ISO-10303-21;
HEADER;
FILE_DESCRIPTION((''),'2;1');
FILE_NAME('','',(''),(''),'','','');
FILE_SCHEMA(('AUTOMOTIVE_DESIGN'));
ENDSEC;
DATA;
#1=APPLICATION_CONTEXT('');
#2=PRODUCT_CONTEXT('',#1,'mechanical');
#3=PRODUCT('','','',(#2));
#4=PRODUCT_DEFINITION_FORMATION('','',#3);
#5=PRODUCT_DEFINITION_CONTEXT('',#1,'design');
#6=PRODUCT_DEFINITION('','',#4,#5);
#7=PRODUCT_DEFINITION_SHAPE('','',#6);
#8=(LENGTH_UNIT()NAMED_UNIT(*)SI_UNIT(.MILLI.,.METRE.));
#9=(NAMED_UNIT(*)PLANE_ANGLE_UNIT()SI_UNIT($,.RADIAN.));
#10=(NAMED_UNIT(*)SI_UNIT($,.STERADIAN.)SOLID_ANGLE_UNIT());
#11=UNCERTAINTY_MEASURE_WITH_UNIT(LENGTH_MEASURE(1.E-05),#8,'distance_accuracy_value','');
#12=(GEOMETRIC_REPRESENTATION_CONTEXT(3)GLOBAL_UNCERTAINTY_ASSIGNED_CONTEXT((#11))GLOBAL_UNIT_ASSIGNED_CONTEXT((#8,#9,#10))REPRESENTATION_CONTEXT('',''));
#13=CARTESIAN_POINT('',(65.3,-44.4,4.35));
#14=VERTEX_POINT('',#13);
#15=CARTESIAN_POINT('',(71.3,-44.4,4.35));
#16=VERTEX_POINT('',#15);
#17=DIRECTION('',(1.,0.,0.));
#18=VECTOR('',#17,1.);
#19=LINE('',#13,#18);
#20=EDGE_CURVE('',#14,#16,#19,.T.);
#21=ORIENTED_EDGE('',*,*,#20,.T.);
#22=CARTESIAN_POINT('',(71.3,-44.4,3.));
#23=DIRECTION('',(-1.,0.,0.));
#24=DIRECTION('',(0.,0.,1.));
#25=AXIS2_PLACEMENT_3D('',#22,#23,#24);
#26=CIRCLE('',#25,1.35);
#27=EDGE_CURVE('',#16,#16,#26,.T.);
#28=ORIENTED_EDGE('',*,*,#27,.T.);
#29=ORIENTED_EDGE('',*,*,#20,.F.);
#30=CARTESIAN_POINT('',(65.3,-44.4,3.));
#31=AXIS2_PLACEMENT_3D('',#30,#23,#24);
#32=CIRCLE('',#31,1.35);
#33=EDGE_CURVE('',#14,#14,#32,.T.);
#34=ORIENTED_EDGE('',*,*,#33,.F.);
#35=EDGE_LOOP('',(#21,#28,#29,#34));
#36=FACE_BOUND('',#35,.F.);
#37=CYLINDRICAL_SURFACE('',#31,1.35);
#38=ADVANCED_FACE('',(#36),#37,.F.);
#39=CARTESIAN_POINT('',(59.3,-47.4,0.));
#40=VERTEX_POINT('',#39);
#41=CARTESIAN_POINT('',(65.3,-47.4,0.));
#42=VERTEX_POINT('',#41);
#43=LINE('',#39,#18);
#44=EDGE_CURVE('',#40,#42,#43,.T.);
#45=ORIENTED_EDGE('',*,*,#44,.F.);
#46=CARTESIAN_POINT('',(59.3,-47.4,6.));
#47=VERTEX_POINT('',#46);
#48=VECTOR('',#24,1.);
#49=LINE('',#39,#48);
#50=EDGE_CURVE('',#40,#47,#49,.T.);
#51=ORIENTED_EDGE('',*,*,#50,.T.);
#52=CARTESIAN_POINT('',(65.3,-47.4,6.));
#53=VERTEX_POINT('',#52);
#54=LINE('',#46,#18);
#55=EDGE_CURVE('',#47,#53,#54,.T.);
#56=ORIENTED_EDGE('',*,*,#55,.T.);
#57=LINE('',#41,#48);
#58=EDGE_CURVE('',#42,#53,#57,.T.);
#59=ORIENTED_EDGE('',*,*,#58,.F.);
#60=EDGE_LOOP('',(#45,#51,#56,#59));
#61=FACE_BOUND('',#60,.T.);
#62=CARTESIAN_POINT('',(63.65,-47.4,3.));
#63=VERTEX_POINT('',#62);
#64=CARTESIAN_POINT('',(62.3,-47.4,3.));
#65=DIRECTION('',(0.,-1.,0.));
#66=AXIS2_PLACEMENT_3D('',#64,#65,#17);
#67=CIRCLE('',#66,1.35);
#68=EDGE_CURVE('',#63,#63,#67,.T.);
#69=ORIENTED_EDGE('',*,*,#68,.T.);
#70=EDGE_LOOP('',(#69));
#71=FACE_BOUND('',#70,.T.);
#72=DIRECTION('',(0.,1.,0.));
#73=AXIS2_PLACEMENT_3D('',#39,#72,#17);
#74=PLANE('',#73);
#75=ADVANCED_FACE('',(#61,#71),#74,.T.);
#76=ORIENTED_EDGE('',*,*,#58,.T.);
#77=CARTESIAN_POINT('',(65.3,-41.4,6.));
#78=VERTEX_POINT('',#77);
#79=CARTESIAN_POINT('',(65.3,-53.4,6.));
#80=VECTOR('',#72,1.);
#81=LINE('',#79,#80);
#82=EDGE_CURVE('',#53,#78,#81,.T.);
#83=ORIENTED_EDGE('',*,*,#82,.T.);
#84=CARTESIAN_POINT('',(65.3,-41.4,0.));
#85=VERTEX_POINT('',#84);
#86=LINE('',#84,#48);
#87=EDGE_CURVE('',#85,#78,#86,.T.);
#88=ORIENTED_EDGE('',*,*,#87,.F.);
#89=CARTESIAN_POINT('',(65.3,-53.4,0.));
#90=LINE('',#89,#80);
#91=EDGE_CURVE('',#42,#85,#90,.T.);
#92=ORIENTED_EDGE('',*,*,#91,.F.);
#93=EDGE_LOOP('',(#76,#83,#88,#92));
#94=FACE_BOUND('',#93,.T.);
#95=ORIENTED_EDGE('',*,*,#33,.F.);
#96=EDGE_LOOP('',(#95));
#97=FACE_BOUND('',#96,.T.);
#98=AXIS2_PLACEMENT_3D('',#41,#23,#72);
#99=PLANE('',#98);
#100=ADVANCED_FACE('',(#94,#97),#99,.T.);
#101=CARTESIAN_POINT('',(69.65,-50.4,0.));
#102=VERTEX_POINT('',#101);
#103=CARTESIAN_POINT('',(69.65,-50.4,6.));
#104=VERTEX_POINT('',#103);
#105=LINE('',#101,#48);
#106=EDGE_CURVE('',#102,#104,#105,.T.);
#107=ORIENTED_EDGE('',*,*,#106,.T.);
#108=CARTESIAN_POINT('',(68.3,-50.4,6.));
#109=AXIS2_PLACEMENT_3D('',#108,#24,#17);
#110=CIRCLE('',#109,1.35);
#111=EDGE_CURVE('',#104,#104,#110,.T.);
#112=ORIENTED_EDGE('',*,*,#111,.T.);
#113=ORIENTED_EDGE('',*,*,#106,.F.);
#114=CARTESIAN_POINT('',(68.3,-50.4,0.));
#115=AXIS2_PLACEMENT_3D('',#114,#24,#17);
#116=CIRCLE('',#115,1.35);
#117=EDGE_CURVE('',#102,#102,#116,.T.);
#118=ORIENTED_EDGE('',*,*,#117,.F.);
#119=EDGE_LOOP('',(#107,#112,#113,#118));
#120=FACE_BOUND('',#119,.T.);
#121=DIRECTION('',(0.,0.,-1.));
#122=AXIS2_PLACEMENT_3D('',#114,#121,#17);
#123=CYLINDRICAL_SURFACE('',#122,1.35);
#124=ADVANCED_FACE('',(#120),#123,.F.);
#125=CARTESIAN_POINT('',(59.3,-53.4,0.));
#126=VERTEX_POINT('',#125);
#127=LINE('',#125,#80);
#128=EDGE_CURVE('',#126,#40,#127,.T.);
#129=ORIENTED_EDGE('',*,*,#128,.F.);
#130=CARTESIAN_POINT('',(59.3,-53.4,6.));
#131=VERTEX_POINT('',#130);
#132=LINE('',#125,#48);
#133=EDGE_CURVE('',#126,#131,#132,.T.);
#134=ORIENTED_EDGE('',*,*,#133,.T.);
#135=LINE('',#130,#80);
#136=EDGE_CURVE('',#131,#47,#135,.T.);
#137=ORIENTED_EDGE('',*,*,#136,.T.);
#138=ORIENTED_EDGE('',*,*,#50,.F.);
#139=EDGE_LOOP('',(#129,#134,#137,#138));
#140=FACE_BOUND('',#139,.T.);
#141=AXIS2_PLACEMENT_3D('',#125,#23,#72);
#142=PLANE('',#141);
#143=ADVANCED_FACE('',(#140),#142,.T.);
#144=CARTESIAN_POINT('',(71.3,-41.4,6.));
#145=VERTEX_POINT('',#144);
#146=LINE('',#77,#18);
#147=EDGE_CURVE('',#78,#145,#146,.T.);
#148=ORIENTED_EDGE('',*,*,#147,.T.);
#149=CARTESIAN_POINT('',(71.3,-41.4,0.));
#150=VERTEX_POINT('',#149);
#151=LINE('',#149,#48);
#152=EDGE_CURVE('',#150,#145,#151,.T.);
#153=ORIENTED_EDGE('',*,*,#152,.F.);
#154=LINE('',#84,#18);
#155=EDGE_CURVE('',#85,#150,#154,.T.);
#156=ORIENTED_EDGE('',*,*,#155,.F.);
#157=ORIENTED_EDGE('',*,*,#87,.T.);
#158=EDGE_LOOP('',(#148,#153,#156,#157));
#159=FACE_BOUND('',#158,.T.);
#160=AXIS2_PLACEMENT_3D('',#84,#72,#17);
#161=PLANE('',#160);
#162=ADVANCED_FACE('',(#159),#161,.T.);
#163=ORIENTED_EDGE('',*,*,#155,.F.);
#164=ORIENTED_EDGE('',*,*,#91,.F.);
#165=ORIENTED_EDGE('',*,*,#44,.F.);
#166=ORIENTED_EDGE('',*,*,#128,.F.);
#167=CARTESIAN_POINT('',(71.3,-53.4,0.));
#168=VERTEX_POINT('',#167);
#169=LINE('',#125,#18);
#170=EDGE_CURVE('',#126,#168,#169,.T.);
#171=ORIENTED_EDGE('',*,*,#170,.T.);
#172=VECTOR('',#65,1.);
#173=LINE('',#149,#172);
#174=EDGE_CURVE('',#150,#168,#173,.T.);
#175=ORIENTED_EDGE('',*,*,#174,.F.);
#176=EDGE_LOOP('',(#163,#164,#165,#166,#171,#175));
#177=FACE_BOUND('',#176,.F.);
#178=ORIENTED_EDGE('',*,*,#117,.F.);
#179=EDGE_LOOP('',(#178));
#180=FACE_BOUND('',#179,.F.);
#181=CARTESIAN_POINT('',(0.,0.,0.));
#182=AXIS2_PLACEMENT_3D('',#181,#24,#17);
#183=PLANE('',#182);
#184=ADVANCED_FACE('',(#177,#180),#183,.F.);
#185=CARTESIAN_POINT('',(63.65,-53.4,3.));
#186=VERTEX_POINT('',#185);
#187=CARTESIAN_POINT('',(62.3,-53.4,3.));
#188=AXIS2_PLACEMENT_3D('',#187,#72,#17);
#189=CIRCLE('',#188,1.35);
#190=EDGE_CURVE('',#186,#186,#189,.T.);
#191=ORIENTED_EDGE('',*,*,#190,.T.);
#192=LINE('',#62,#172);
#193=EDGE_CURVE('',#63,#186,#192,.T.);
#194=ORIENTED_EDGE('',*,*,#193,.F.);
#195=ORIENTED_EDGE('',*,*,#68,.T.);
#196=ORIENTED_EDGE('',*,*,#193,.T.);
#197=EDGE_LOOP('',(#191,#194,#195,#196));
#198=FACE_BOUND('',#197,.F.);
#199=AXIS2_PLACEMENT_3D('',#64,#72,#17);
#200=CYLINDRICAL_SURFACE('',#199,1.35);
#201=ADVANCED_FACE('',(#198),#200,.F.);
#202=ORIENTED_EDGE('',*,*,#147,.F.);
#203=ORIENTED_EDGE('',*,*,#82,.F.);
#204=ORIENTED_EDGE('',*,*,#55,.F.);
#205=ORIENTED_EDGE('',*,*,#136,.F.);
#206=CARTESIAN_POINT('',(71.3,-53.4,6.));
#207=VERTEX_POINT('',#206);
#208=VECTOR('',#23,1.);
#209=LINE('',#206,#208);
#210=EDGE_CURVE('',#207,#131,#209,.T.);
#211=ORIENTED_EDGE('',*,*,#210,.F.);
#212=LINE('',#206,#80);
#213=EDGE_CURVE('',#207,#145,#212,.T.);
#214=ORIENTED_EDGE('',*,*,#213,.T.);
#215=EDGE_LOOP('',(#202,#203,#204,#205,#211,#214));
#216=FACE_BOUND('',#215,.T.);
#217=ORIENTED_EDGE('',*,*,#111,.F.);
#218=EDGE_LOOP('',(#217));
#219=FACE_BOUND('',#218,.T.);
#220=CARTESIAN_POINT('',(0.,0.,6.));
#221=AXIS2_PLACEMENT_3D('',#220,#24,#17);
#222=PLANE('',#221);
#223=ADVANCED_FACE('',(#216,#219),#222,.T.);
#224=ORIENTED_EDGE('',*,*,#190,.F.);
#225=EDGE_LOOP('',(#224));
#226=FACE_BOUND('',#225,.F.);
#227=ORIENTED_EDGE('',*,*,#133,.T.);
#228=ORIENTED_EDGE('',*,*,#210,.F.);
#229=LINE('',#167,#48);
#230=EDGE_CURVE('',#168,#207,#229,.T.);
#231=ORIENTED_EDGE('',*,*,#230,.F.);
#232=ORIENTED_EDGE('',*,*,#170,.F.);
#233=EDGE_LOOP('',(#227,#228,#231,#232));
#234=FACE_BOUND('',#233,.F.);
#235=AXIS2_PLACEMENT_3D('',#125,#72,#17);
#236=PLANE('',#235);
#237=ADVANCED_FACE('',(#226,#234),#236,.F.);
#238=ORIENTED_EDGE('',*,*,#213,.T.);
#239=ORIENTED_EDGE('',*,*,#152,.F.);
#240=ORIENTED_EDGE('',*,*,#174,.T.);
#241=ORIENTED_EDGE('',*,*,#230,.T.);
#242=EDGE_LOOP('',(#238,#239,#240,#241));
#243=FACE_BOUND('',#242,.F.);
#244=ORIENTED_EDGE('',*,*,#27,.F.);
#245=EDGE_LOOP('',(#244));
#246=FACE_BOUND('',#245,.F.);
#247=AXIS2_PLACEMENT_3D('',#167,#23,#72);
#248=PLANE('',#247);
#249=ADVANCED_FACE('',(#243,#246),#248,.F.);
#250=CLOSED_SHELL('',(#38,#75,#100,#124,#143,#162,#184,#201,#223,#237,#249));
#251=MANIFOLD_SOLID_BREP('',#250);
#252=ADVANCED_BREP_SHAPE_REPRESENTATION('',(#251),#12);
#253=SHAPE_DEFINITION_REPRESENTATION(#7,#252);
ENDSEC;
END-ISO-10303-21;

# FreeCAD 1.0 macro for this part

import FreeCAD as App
import Part
import Sketcher

V = App.Vector


def add_polygon(sketch, points):
    """Adds a closed chain of lines whose ends are joined by coincident constraints."""
    first, n = sketch.GeometryCount, len(points)
    for a, b in zip(points, points[1:] + points[:1]):
        sketch.addGeometry(Part.LineSegment(App.Vector(*a, 0), App.Vector(*b, 0)), False)
    for i in range(n):
        sketch.addConstraint(Sketcher.Constraint("Coincident", first + i, 2, first + (i + 1) % n, 1))

doc = App.newDocument("Part")
params = doc.addObject("Spreadsheet::Sheet", "Params")
for row, (alias, value) in enumerate([
    ("sketch1_diameter", "2.7 mm"),
    ("sketch1_width", "12 mm"),
    ("pad1_length", "6 mm"),
    ("sketch2_diameter", "2.7 mm"),
    ("sketch3_diameter", "2.7 mm"),
], start=1):
    params.set(f"A{row}", alias)
    params.set(f"B{row}", "=" + value)
    params.setAlias(f"B{row}", alias)

body = doc.addObject("PartDesign::Body", "Body")

sketch1 = doc.addObject("Sketcher::SketchObject", "Sketch")
body.addObject(sketch1)
sketch1.AttachmentSupport = (doc.XY_Plane, [""])
sketch1.MapMode = "FlatFace"
add_polygon(sketch1, [(59.3, -47.4), (59.3, -53.4), (71.3, -53.4), (71.3, -41.4), (65.3, -41.4), (65.3, -47.4)])
sketch1.addGeometry(Part.Circle(V(68.3, -50.4, 0), V(0, 0, 1), 1.35), False)
sketch1.addConstraint([
    Sketcher.Constraint("Vertical", 0),
    Sketcher.Constraint("Horizontal", 1),
    Sketcher.Constraint("Vertical", 2),
    Sketcher.Constraint("Horizontal", 3),
    Sketcher.Constraint("Vertical", 4),
    Sketcher.Constraint("Horizontal", 5),
    Sketcher.Constraint("Equal", 3, 5),
    Sketcher.Constraint("Equal", 5, 0),
    Sketcher.Constraint("Equal", 1, 2),
    Sketcher.Constraint("Diameter", 6, 2.7),
    Sketcher.Constraint("DistanceX", 1, 1, 1, 2, 12.0),
    Sketcher.Constraint("DistanceX", 0, 2, 6, 3, 9.0),
    Sketcher.Constraint("DistanceY", 0, 2, 6, 3, 3.0),
    Sketcher.Constraint("DistanceX", -1, 1, 6, 3, 68.3),
    Sketcher.Constraint("DistanceY", 6, 3, -1, 1, 50.4),
])
sketch1.setExpression("Constraints[15]", "Params.sketch1_diameter")
sketch1.setExpression("Constraints[16]", "Params.sketch1_width")
pad1 = doc.addObject("PartDesign::Pad", "Pad")
body.addObject(pad1)
pad1.Profile = sketch1
pad1.setExpression("Length", "Params.pad1_length")

sketch2 = doc.addObject("Sketcher::SketchObject", "Sketch001")
body.addObject(sketch2)
sketch2.AttachmentSupport = (doc.XZ_Plane, [""])
sketch2.MapMode = "FlatFace"
sketch2.AttachmentOffset = App.Placement(V(0, 0, 47.4), App.Rotation())
sketch2.addGeometry(Part.Circle(V(62.3, 3, 0), V(0, 0, 1), 1.35), False)
sketch2.addConstraint([
    Sketcher.Constraint("Diameter", 0, 2.7),
    Sketcher.Constraint("DistanceY", -1, 1, 0, 3, 3.0),
    Sketcher.Constraint("DistanceX", -1, 1, 0, 3, 62.3),
])
sketch2.setExpression("Constraints[0]", "Params.sketch2_diameter")
pocket1 = doc.addObject("PartDesign::Pocket", "Pocket")
body.addObject(pocket1)
pocket1.Profile = sketch2
pocket1.Type = "UpToFirst"
pocket1.Reversed = True

sketch3 = doc.addObject("Sketcher::SketchObject", "Sketch002")
body.addObject(sketch3)
sketch3.AttachmentSupport = (doc.YZ_Plane, [""])
sketch3.MapMode = "FlatFace"
sketch3.AttachmentOffset = App.Placement(V(0, 0, 65.3), App.Rotation())
sketch3.addGeometry(Part.Circle(V(-44.4, 3, 0), V(0, 0, 1), 1.35), False)
sketch3.addConstraint([
    Sketcher.Constraint("Diameter", 0, 2.7),
    Sketcher.Constraint("DistanceY", -1, 1, 0, 3, 3.0),
    Sketcher.Constraint("DistanceX", 0, 3, -1, 1, 44.4),
])
sketch3.setExpression("Constraints[0]", "Params.sketch3_diameter")
pocket2 = doc.addObject("PartDesign::Pocket", "Pocket001")
body.addObject(pocket2)
pocket2.Profile = sketch3
pocket2.Type = "UpToFirst"
pocket2.Reversed = True

doc.recompute()
